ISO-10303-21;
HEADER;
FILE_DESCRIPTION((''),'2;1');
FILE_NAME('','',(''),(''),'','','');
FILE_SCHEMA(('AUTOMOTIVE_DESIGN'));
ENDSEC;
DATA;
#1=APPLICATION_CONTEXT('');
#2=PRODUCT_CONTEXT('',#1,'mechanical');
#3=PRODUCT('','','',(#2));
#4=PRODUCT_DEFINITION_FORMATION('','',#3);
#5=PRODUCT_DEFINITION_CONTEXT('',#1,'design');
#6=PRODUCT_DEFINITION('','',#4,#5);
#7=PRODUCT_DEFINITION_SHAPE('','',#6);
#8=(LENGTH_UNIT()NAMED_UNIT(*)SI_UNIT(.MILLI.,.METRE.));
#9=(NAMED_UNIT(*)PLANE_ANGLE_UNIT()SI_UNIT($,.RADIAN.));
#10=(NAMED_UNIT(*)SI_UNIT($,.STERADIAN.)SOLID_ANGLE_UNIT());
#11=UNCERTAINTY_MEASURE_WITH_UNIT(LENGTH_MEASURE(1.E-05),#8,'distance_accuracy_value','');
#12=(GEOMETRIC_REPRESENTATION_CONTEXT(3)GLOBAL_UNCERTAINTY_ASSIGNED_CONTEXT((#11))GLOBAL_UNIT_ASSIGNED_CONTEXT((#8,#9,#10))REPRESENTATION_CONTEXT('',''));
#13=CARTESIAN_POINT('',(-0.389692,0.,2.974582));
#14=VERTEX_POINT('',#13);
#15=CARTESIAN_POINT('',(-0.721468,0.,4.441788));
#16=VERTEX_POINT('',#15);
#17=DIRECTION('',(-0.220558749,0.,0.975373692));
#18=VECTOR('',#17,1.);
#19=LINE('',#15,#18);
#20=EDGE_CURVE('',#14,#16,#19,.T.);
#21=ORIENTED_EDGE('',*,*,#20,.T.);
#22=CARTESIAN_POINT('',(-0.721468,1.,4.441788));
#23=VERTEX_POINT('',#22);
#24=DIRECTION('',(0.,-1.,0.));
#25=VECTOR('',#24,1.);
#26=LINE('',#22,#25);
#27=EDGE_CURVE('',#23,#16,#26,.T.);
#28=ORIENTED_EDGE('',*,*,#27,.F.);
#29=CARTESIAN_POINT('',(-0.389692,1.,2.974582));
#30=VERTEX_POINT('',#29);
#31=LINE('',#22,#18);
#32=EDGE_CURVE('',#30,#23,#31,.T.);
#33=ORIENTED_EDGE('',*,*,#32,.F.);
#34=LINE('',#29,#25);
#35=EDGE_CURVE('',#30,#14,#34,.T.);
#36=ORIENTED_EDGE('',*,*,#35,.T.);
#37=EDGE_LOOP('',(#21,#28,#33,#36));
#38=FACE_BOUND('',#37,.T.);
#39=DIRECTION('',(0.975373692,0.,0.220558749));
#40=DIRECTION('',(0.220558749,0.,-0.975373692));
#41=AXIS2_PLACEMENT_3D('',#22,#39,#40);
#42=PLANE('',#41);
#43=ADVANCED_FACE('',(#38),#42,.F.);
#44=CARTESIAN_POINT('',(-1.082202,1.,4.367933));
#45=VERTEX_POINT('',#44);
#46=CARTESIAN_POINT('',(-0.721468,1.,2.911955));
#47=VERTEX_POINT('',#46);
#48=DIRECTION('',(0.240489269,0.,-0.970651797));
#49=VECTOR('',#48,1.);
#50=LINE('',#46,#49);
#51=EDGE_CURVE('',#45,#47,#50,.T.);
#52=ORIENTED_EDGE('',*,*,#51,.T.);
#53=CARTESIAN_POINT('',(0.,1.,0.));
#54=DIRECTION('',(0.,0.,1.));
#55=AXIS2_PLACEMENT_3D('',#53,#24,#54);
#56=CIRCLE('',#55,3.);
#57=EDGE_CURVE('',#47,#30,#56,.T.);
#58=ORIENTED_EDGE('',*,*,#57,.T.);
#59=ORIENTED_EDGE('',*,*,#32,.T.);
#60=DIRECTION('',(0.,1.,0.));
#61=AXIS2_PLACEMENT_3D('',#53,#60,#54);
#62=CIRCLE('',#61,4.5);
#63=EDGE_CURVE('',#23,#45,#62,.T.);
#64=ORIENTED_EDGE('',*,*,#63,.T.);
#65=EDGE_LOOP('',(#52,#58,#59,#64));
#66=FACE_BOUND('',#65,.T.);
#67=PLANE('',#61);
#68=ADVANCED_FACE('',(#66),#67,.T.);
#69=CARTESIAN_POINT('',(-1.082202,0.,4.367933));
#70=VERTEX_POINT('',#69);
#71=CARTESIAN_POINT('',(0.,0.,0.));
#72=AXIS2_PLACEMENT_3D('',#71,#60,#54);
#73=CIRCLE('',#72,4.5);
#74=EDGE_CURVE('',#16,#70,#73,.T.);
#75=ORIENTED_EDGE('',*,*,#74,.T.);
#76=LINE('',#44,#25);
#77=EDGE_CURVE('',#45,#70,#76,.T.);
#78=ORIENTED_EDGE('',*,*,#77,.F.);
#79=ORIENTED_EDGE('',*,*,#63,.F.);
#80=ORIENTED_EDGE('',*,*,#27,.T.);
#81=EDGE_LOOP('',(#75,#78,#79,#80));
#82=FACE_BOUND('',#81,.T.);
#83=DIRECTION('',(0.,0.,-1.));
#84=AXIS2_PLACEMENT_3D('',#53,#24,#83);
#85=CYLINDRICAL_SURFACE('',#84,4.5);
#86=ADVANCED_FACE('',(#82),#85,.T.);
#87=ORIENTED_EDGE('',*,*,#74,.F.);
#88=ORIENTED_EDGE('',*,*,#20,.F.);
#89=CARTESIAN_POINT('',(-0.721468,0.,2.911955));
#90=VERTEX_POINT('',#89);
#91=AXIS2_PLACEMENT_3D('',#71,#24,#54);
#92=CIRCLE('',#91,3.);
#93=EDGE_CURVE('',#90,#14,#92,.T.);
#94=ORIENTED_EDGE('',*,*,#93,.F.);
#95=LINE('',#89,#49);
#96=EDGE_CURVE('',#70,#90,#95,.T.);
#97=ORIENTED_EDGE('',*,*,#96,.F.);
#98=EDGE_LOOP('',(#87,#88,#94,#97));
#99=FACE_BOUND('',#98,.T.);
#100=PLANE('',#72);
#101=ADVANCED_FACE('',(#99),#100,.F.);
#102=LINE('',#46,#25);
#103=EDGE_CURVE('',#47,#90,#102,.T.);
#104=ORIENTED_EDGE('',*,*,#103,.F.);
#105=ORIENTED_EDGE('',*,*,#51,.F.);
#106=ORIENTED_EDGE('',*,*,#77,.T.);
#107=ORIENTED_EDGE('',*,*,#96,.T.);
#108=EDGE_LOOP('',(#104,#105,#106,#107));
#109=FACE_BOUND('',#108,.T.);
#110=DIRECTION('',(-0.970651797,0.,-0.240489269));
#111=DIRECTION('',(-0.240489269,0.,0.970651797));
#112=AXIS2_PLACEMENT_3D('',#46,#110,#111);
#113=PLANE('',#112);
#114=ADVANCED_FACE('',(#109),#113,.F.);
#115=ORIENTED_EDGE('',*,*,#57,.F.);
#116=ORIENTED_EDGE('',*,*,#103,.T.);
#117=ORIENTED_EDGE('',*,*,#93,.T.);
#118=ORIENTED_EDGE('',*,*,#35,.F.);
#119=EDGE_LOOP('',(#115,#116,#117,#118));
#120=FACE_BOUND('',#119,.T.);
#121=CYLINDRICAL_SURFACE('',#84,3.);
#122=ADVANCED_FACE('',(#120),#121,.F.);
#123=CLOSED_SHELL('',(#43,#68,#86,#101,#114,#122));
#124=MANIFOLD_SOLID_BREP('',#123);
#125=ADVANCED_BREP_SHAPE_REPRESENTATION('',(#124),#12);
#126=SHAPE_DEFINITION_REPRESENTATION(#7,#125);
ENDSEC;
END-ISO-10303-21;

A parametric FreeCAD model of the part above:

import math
import FreeCAD as App
import Part
import Sketcher
Q = App.Units.Quantity

doc = App.newDocument("Part")
params = doc.addObject("Spreadsheet::Sheet", "Params")
for row, (alias, value) in enumerate([
    ("sketch1_radius", "3 mm"),
    ("sketch1_radius2", "4.5 mm"),
    ("pad1_length", "1 mm"),
], start=1):
    params.set(f"A{row}", alias)
    params.set(f"B{row}", "=" + value)
    params.setAlias(f"B{row}", alias)

body = doc.addObject("PartDesign::Body", "Body")

# Sketch on XZ plane
sketch1 = body.newObject("Sketcher::SketchObject", "Sketch")
sketch1.AttachmentSupport = (doc.getObject("XZ_Plane"), [""])
sketch1.MapMode = "FlatFace"
sketch1.addGeometry(Part.LineSegment(App.Vector(-1.082202, 4.367933, 0), App.Vector(-0.721468, 2.911955, 0)), False)
sketch1.addGeometry(Part.ArcOfCircle(Part.Circle(App.Vector(0, 0, 0), App.Vector(0, 0, 1), 3), math.radians(103.915419), math.radians(457.463665)), False)
sketch1.addGeometry(Part.LineSegment(App.Vector(-0.389692, 2.974582, 0), App.Vector(-0.721468, 4.441788, 0)), False)
sketch1.addGeometry(Part.ArcOfCircle(Part.Circle(App.Vector(0, 0, 0), App.Vector(0, 0, 1), 4.5), math.radians(103.915419), math.radians(459.225829)), False)
sketch1.addConstraint(Sketcher.Constraint("Coincident", 0, 2, 1, 1))
sketch1.addConstraint(Sketcher.Constraint("Coincident", 1, 2, 2, 1))
sketch1.addConstraint(Sketcher.Constraint("Coincident", 2, 2, 3, 2))
sketch1.addConstraint(Sketcher.Constraint("Coincident", 3, 1, 0, 1))
sketch1.addConstraint(Sketcher.Constraint("Coincident", 1, 3, -1, 1))
sketch1.addConstraint(Sketcher.Constraint("Coincident", 3, 3, -1, 1))
sketch1.addConstraint(Sketcher.Constraint("Vertical", 0, 2, 2, 2))
sketch1.addConstraint(Sketcher.Constraint("Radius", 1, Q("3 mm")))
sketch1.addConstraint(Sketcher.Constraint("Radius", 3, Q("4.5 mm")))
sketch1.addConstraint(Sketcher.Constraint("DistanceX", 3, 1, -1, 1, Q("1.082202 mm")))
sketch1.addConstraint(Sketcher.Constraint("Distance", 2, Q("1.50425 mm")))
sketch1.addConstraint(Sketcher.Constraint("DistanceY", -1, 1, 2, 2, Q("4.441788 mm")))
sketch1.setExpression("Constraints[7]", "Params.sketch1_radius")
sketch1.setExpression("Constraints[8]", "Params.sketch1_radius2")
pad1 = body.newObject("PartDesign::Pad", "Pad")
pad1.Profile = sketch1
pad1.setExpression("Length", "Params.pad1_length")
pad1.Reversed = True

doc.recompute()
